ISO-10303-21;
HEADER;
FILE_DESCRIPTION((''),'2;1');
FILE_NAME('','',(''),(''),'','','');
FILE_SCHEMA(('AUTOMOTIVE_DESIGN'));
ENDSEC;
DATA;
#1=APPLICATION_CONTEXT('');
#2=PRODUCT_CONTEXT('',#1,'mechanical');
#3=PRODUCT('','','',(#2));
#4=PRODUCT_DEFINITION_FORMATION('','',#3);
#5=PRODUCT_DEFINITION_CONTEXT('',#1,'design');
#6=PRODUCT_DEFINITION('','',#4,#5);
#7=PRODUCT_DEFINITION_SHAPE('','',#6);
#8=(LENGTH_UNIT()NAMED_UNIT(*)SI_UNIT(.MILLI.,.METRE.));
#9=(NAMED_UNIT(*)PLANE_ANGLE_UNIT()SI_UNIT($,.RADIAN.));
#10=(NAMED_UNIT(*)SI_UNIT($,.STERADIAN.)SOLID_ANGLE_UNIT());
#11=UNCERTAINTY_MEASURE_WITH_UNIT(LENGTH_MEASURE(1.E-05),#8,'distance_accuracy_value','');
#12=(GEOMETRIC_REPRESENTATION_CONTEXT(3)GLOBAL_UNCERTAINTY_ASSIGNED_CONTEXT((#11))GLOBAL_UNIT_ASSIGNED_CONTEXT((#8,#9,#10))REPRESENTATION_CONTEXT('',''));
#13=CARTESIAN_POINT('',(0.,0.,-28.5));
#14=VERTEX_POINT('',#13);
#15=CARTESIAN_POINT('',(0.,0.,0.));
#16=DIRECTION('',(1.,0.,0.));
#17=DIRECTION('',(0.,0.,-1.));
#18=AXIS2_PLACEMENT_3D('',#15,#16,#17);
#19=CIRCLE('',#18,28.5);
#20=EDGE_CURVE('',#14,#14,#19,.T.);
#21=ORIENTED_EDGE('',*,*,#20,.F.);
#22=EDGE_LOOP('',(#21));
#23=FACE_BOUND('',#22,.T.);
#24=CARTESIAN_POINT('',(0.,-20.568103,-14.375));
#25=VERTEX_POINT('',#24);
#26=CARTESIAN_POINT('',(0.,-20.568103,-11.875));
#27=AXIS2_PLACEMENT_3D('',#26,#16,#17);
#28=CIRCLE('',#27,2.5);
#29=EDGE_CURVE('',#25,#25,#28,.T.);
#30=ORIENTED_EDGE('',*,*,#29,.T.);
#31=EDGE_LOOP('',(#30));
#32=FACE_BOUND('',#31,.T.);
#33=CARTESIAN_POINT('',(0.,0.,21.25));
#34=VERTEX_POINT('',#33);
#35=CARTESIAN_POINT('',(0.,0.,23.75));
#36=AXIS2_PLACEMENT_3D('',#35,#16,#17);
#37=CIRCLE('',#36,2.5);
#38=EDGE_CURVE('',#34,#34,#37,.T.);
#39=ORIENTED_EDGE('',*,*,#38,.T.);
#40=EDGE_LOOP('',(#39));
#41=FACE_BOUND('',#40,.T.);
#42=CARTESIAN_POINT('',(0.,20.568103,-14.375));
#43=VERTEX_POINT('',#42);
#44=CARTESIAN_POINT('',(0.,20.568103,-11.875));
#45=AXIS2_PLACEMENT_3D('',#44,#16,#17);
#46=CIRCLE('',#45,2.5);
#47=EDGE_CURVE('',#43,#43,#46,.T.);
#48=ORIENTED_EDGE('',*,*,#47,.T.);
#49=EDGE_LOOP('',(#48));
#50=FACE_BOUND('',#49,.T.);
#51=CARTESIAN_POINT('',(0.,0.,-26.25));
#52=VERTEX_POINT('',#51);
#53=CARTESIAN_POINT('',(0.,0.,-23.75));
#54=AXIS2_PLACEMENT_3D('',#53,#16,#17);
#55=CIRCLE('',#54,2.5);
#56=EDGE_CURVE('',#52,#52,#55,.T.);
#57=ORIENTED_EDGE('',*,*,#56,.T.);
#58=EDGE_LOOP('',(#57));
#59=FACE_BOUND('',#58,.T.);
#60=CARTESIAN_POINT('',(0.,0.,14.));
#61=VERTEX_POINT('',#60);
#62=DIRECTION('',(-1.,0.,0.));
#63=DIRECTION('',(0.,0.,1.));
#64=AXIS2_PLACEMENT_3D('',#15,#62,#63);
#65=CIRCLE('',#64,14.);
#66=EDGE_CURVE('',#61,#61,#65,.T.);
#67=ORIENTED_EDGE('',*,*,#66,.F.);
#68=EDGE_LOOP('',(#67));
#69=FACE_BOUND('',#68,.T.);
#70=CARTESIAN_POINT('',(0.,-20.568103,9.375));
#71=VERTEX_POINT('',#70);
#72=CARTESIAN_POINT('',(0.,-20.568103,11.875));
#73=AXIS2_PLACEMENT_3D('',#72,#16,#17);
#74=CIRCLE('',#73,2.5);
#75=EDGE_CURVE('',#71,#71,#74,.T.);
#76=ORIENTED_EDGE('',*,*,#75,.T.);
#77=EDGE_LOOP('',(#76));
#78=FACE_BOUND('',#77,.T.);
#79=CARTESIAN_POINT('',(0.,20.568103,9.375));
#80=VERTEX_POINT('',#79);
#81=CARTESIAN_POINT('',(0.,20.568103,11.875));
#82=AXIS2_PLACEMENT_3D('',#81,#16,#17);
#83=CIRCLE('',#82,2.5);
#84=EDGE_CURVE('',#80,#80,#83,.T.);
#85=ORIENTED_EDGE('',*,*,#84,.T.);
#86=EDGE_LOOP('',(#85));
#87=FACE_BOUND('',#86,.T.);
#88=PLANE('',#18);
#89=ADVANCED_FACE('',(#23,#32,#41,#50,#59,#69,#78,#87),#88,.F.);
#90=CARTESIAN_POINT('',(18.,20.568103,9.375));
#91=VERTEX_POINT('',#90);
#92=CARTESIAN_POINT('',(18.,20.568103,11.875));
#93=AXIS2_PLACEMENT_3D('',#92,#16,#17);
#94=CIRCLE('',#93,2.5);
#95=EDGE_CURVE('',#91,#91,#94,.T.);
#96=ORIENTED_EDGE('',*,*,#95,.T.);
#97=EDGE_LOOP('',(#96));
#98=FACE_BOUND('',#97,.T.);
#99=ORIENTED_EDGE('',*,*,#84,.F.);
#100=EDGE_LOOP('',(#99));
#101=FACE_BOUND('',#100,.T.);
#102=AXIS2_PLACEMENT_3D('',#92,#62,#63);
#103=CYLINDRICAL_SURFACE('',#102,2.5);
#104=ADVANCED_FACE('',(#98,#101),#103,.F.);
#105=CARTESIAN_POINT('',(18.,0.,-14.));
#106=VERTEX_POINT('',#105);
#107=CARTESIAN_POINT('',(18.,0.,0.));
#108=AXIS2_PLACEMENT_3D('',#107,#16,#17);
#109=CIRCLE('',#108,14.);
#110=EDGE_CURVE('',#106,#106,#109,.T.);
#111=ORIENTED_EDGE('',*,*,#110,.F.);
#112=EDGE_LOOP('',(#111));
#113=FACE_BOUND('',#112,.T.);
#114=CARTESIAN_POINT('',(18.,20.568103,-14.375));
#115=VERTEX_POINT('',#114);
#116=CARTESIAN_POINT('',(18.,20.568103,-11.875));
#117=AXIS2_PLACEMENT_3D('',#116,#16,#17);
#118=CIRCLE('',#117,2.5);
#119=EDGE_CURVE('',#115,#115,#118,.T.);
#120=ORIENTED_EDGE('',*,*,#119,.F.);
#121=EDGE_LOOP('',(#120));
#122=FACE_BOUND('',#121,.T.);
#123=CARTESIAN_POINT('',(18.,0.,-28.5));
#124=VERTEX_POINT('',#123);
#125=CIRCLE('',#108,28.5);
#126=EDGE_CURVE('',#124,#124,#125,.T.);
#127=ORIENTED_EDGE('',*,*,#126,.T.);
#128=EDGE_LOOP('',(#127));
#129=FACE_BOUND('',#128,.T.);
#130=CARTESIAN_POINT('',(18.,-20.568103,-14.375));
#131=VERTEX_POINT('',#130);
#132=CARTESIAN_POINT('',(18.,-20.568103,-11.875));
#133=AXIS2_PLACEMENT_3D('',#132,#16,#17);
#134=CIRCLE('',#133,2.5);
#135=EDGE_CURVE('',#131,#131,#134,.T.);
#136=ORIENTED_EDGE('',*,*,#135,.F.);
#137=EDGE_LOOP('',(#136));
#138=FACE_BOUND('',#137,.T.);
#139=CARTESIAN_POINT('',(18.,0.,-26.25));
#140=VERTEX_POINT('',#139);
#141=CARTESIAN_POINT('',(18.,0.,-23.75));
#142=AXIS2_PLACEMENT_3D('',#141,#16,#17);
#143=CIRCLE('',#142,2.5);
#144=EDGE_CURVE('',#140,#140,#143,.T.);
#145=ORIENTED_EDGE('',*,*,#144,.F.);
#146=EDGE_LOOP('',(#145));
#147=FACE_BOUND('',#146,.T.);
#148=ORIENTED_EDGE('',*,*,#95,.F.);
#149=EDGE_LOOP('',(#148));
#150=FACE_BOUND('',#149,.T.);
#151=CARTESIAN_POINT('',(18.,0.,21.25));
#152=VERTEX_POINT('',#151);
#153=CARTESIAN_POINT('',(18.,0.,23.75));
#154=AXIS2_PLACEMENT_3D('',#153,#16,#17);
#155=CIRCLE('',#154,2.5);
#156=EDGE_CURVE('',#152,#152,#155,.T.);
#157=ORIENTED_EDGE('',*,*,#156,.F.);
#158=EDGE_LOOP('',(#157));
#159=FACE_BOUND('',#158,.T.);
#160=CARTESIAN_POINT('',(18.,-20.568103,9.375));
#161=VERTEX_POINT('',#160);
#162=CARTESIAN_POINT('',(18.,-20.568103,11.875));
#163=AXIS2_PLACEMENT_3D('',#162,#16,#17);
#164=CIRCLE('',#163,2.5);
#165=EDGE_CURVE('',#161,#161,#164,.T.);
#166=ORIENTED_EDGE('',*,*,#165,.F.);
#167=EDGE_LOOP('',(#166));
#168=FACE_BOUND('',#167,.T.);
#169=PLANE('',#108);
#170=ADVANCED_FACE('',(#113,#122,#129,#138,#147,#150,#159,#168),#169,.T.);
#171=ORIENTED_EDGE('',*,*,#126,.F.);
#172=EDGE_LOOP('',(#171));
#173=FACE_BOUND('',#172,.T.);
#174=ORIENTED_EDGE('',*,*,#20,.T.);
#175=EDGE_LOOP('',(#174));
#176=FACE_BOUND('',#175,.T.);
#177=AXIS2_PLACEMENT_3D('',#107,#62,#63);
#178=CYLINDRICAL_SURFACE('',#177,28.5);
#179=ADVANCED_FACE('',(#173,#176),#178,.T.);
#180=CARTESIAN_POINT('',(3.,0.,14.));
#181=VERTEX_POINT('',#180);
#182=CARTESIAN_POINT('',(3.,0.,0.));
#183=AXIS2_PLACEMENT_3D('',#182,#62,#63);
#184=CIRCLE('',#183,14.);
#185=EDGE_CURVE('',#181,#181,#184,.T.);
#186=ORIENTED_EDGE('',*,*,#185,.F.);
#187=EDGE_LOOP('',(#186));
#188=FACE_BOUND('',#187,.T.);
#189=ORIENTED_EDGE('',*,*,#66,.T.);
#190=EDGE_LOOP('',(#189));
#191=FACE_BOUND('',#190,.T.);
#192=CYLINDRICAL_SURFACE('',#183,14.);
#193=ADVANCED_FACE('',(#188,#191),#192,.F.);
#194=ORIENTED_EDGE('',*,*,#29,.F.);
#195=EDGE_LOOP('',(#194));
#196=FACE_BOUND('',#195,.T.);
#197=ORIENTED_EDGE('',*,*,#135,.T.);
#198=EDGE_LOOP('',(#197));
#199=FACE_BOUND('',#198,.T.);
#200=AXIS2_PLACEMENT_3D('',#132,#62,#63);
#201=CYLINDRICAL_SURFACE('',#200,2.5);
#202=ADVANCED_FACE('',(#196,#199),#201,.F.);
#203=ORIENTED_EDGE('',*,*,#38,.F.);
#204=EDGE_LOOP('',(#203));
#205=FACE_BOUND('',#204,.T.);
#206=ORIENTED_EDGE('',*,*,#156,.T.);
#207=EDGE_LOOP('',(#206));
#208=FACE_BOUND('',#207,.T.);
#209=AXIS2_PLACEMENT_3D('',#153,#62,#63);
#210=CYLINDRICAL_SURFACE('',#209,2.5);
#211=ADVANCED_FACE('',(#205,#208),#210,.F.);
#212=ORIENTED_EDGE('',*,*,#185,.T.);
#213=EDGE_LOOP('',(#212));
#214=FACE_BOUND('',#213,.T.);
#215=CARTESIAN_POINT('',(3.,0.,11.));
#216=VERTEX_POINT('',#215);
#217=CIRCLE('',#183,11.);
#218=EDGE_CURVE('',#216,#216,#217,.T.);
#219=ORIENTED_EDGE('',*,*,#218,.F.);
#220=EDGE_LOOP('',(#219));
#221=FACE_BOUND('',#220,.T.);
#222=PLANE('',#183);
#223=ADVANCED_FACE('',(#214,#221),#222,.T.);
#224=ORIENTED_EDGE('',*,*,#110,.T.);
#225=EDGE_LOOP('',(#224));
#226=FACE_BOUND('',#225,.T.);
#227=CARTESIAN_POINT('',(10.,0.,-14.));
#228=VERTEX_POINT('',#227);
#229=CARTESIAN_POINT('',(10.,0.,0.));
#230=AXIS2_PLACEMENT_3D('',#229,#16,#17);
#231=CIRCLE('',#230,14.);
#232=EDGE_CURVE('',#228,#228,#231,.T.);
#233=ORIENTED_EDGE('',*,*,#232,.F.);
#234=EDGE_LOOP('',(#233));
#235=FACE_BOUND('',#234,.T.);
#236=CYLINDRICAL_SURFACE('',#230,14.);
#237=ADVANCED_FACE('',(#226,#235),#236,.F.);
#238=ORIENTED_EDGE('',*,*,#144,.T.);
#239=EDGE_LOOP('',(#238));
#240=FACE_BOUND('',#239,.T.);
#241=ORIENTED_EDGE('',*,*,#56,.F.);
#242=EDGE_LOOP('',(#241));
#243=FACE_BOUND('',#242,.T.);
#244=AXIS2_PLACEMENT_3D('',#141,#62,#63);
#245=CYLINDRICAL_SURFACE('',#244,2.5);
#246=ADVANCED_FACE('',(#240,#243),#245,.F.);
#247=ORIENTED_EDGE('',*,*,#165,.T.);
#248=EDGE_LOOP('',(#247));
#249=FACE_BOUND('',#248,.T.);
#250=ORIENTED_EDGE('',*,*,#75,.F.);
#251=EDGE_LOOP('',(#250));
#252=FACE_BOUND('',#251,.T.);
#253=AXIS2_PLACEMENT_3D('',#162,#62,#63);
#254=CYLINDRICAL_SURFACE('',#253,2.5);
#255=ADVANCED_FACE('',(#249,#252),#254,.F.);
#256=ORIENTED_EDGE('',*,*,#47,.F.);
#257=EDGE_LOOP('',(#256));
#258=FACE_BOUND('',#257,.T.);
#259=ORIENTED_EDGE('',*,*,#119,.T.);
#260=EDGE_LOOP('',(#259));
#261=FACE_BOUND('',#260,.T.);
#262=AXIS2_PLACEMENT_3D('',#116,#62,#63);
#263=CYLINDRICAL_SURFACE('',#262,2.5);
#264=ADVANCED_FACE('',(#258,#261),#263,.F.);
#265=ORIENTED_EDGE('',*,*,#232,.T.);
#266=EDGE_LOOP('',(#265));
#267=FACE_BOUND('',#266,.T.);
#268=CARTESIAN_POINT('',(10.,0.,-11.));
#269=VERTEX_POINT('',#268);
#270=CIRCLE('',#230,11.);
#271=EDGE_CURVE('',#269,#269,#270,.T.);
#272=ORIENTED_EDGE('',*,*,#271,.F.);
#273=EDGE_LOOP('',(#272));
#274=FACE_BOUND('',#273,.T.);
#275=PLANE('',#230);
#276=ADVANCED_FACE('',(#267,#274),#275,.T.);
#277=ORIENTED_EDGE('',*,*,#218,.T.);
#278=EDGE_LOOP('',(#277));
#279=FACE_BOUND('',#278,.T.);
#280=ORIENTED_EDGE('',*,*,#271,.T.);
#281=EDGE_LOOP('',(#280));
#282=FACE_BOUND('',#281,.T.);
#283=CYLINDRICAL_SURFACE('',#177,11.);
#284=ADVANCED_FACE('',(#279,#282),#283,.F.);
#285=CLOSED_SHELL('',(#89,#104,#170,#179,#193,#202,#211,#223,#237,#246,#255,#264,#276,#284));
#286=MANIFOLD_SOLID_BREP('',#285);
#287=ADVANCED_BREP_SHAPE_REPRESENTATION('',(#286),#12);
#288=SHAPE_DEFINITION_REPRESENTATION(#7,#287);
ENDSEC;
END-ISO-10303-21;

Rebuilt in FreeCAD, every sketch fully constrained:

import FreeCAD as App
import Part
import Sketcher
from FreeCAD import Vector
Q = App.Units.Quantity

doc = App.newDocument("Part")
body = doc.addObject("PartDesign::Body", "Body")

# Sketch on YZ plane
sketch1 = body.newObject("Sketcher::SketchObject", "Sketch")
sketch1.AttachmentSupport = (doc.getObject("YZ_Plane"), [""])
sketch1.MapMode = "FlatFace"
sketch1.addGeometry(Part.Circle(Vector(0, 0, 0), Vector(0, 0, 1), 28.5), False)
sketch1.addGeometry(Part.Circle(Vector(-20.6, 11.9, 0), Vector(0, 0, 1), 2.5), False)
sketch1.addGeometry(Part.Circle(Vector(-20.6, -11.9, 0), Vector(0, 0, 1), 2.5), False)
sketch1.addGeometry(Part.Circle(Vector(0, 23.8, 0), Vector(0, 0, 1), 2.5), False)
sketch1.addGeometry(Part.Circle(Vector(20.6, 11.9, 0), Vector(0, 0, 1), 2.5), False)
sketch1.addGeometry(Part.Circle(Vector(0, 0, 0), Vector(0, 0, 1), 11), False)
sketch1.addGeometry(Part.Circle(Vector(0, -23.8, 0), Vector(0, 0, 1), 2.5), False)
sketch1.addGeometry(Part.Circle(Vector(20.6, -11.9, 0), Vector(0, 0, 1), 2.5), False)
sketch1.addConstraint(Sketcher.Constraint("Coincident", 0, 3, -1, 1))
sketch1.addConstraint(Sketcher.Constraint("Coincident", 5, 3, -1, 1))
sketch1.addConstraint(Sketcher.Constraint("Equal", 1, 2))
sketch1.addConstraint(Sketcher.Constraint("Equal", 2, 3))
sketch1.addConstraint(Sketcher.Constraint("Equal", 3, 4))
sketch1.addConstraint(Sketcher.Constraint("Equal", 4, 6))
sketch1.addConstraint(Sketcher.Constraint("Equal", 6, 7))
sketch1.addConstraint(Sketcher.Constraint("Symmetric", 2, 3, 4, 3, -1, 1))
sketch1.addConstraint(Sketcher.Constraint("Symmetric", 3, 3, 6, 3, -1, 1))
sketch1.addConstraint(Sketcher.Constraint("Symmetric", 1, 3, 7, 3, -1, 1))
sketch1.addConstraint(Sketcher.Constraint("Symmetric", 1, 3, 4, 3, -2))
sketch1.addConstraint(Sketcher.Constraint("PointOnObject", 3, 3, -2))
sketch1.addConstraint(Sketcher.Constraint("Diameter", 0, Q("57 mm")))
sketch1.addConstraint(Sketcher.Constraint("Diameter", 1, Q("5 mm")))
sketch1.addConstraint(Sketcher.Constraint("Diameter", 5, Q("22 mm")))
sketch1.addConstraint(Sketcher.Constraint("DistanceY", -1, 1, 3, 3, Q("23.75 mm")))
sketch1.addConstraint(Sketcher.Constraint("DistanceY", 2, 3, 1, 3, Q("23.75 mm")))
sketch1.addConstraint(Sketcher.Constraint("DistanceX", 1, 3, -1, 1, Q("20.568103 mm")))
pad1 = body.newObject("PartDesign::Pad", "Pad")
pad1.Profile = sketch1
pad1.Length = 18

# Sketch on YZ plane
sketch2 = body.newObject("Sketcher::SketchObject", "Sketch001")
sketch2.AttachmentSupport = (doc.getObject("YZ_Plane"), [""])
sketch2.MapMode = "FlatFace"
sketch2.AttachmentOffset = App.Placement(Vector(0, 0, 10), App.Rotation())
sketch2.addGeometry(Part.Circle(Vector(0, 0, 0), Vector(0, 0, 1), 14), False)
sketch2.addGeometry(Part.Circle(Vector(0, 0, 0), Vector(0, 0, 1), 11), False)
sketch2.addConstraint(Sketcher.Constraint("Coincident", 0, 3, -1, 1))
sketch2.addConstraint(Sketcher.Constraint("Coincident", 1, 3, -1, 1))
sketch2.addConstraint(Sketcher.Constraint("Diameter", 0, Q("28 mm")))
sketch2.addConstraint(Sketcher.Constraint("Diameter", 1, Q("22 mm")))
pocket1 = body.newObject("PartDesign::Pocket", "Pocket")
pocket1.Profile = sketch2
pocket1.Length = 8
pocket1.Reversed = True

# Sketch on YZ plane
sketch3 = body.newObject("Sketcher::SketchObject", "Sketch002")
sketch3.AttachmentSupport = (doc.getObject("YZ_Plane"), [""])
sketch3.MapMode = "FlatFace"
sketch3.addGeometry(Part.Circle(Vector(0, 0, 0), Vector(0, 0, 1), 14), False)
sketch3.addGeometry(Part.Circle(Vector(0, 0, 0), Vector(0, 0, 1), 11), False)
sketch3.addConstraint(Sketcher.Constraint("Coincident", 0, 3, -1, 1))
sketch3.addConstraint(Sketcher.Constraint("Coincident", 1, 3, -1, 1))
sketch3.addConstraint(Sketcher.Constraint("Diameter", 0, Q("28 mm")))
sketch3.addConstraint(Sketcher.Constraint("Diameter", 1, Q("22 mm")))
pocket2 = body.newObject("PartDesign::Pocket", "Pocket001")
pocket2.Profile = sketch3
pocket2.Length = 3
pocket2.Reversed = True

doc.recompute()
